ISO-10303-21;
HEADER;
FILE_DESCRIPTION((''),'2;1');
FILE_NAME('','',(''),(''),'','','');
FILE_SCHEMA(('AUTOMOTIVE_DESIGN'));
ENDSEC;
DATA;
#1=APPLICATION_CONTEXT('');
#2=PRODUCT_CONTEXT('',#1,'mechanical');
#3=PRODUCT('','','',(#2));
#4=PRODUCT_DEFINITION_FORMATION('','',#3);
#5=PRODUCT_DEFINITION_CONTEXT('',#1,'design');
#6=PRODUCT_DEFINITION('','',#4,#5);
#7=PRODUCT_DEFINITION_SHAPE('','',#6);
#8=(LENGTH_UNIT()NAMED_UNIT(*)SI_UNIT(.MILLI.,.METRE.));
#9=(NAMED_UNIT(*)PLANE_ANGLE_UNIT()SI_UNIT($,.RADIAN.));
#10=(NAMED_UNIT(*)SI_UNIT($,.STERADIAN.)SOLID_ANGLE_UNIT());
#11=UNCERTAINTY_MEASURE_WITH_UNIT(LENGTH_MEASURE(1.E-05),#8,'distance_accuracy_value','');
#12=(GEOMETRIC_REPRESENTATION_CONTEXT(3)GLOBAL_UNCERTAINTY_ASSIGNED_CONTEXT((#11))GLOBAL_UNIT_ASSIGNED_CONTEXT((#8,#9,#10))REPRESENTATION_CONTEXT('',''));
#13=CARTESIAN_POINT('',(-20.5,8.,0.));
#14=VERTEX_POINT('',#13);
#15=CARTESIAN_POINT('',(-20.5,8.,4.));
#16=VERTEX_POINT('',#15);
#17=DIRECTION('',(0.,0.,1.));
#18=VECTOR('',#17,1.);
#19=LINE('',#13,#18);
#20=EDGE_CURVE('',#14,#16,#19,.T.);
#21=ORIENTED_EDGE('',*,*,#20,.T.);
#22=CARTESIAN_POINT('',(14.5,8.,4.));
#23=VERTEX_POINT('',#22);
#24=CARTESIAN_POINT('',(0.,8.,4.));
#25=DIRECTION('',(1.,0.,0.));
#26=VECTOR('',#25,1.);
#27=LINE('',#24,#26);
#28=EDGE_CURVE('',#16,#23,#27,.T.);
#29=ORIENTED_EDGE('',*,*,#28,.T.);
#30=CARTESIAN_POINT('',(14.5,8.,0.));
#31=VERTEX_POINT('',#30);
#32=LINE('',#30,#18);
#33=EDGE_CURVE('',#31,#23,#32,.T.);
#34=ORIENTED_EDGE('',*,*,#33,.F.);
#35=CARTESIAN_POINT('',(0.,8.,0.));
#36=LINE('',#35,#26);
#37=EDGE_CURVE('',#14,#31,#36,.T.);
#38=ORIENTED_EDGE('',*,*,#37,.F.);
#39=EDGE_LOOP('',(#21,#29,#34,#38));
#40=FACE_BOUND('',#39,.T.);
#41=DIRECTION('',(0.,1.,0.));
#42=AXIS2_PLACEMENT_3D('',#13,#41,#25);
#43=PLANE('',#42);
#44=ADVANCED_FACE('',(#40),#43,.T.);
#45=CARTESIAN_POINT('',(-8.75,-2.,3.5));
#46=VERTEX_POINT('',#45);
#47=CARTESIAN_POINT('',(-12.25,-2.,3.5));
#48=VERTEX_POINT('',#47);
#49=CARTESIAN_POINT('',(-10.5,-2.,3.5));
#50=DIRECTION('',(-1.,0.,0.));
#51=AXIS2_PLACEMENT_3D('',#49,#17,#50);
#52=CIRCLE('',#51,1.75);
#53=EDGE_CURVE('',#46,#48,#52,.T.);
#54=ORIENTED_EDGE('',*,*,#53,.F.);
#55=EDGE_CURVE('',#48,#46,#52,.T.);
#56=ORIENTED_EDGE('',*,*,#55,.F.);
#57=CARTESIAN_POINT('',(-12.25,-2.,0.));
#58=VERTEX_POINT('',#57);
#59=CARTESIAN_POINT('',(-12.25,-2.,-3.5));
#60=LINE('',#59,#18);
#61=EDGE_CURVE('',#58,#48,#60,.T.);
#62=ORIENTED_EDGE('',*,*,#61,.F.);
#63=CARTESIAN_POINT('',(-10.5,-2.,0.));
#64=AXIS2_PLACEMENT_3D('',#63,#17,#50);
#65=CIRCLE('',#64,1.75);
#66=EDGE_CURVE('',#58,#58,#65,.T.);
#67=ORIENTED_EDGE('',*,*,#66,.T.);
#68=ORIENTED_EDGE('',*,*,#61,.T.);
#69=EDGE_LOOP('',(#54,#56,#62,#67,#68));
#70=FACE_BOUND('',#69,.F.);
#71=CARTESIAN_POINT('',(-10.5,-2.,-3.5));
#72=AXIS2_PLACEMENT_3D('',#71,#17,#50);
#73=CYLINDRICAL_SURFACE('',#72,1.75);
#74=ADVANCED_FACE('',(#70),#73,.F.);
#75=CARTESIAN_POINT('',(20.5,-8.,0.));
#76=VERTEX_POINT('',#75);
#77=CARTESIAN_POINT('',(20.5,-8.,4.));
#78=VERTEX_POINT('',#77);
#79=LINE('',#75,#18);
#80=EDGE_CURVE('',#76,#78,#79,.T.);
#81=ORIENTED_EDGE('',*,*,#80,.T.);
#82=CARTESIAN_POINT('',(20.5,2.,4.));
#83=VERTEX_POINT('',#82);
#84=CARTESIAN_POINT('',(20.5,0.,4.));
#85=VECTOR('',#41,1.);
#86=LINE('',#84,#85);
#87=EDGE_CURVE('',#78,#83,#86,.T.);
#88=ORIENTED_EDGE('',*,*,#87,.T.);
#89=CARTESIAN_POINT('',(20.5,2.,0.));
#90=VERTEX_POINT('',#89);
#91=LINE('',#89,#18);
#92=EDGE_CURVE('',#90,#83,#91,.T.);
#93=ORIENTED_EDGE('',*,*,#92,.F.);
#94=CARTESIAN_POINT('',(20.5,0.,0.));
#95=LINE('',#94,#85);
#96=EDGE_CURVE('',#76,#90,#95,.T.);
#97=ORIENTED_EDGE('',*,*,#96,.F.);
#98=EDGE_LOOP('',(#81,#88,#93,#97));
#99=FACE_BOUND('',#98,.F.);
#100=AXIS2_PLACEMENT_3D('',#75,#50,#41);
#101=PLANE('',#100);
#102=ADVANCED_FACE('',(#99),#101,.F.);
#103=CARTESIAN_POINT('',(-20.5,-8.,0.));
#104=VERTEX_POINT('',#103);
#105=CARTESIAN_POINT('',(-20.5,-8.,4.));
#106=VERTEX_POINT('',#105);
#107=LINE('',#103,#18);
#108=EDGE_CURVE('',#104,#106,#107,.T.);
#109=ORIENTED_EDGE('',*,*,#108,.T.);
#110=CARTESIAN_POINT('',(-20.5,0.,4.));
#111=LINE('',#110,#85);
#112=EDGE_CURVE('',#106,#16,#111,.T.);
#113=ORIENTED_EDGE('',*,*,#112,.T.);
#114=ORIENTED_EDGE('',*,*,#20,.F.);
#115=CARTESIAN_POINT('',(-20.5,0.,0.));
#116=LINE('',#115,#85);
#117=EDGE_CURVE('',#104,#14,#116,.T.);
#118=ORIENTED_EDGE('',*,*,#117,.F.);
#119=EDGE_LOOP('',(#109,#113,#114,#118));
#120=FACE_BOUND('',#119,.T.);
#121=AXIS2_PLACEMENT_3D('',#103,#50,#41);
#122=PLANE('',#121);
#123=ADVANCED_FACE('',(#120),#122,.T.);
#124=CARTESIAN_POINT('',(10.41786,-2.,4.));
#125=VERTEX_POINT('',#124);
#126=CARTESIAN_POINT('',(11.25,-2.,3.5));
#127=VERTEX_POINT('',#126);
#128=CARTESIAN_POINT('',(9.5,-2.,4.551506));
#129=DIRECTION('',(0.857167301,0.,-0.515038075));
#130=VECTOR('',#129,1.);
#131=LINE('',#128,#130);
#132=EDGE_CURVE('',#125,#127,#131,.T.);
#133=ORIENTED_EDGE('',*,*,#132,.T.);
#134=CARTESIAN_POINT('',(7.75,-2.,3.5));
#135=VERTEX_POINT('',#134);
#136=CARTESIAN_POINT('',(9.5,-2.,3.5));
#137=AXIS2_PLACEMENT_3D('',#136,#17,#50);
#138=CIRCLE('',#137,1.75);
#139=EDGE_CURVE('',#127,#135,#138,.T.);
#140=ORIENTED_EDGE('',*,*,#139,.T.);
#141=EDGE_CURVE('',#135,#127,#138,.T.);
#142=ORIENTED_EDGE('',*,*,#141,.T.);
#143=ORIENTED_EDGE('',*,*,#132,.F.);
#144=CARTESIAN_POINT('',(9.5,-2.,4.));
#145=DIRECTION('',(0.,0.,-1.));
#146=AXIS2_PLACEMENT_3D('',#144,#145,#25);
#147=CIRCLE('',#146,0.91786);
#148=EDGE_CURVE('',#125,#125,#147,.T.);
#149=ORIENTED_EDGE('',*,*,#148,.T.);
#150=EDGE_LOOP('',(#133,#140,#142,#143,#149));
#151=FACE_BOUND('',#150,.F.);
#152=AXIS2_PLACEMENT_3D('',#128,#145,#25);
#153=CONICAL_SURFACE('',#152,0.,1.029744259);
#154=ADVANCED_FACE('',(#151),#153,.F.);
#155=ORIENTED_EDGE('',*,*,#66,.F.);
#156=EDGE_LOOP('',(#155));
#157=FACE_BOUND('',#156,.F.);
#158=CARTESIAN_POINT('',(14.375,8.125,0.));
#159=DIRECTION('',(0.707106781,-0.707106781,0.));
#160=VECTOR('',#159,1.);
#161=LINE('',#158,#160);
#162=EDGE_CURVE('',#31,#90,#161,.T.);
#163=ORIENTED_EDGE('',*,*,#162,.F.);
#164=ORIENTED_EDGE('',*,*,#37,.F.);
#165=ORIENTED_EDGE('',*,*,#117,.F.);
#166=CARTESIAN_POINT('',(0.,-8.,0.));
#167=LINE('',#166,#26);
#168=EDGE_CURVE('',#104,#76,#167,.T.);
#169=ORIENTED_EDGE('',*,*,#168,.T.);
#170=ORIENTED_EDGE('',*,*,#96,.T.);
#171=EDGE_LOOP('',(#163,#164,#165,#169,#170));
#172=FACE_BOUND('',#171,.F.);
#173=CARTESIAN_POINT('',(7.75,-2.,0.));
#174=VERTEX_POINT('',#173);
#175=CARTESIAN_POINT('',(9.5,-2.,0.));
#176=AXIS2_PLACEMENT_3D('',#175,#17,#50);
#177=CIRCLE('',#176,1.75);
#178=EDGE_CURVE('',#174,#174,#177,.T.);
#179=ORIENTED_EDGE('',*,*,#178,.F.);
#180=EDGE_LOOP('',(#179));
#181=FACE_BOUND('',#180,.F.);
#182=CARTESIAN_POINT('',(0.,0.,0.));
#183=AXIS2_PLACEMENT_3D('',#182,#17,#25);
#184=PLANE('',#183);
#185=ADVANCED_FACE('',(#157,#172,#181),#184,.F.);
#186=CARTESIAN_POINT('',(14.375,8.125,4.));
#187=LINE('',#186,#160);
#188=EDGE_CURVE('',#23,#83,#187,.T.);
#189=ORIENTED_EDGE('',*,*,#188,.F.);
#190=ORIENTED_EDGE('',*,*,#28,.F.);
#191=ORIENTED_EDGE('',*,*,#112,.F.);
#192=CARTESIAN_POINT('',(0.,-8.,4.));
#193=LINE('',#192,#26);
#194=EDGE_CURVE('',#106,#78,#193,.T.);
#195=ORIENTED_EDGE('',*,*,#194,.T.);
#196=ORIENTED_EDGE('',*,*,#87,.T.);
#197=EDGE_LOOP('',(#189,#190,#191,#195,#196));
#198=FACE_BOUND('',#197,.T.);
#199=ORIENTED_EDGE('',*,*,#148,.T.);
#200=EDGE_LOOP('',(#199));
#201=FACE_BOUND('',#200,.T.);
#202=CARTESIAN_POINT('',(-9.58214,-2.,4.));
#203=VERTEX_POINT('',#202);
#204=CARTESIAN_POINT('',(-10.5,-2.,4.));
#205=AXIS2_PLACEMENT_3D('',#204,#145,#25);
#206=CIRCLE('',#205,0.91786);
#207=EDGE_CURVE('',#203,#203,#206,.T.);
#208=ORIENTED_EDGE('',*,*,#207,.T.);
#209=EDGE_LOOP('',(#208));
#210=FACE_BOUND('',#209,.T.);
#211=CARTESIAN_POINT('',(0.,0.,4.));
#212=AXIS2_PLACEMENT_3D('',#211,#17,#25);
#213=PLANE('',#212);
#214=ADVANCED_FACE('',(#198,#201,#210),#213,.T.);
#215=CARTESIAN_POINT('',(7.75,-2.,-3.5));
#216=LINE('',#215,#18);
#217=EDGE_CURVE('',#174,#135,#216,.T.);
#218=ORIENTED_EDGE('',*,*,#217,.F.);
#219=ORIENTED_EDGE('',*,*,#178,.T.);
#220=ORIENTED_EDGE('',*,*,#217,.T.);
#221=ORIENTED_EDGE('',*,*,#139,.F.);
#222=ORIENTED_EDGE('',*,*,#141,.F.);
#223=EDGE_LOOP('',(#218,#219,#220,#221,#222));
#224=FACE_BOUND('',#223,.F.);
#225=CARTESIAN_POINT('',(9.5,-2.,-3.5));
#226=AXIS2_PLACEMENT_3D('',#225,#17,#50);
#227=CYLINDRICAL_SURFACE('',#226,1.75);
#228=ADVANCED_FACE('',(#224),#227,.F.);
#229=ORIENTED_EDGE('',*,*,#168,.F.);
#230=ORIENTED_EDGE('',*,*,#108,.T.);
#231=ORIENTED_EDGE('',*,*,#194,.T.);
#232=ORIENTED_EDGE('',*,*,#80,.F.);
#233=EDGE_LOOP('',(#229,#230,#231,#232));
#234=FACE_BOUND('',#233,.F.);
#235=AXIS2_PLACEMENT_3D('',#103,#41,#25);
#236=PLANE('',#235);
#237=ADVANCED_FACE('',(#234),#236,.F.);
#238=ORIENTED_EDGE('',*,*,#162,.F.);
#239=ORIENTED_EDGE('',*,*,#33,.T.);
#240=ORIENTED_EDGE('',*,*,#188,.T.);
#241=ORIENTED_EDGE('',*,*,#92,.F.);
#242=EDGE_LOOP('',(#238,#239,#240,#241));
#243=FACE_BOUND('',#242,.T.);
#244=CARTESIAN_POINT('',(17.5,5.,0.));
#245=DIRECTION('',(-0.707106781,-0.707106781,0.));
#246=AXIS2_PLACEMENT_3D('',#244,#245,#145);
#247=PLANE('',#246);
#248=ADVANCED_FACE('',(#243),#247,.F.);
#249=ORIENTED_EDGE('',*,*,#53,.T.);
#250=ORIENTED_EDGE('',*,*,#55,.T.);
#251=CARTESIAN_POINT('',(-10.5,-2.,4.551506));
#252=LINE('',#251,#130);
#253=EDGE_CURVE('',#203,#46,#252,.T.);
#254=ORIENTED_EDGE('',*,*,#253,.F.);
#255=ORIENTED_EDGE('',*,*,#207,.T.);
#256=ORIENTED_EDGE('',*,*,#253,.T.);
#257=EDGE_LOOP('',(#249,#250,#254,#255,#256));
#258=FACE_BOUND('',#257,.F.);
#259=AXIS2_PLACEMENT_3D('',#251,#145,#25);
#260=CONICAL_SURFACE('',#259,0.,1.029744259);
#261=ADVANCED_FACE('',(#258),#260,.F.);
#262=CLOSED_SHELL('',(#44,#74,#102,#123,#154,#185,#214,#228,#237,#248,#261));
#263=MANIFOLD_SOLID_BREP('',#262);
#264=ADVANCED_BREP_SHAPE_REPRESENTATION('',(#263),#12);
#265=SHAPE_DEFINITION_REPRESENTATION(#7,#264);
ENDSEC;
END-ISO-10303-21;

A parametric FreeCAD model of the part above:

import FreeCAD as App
import Part
import Sketcher

V = App.Vector
Q = App.Units.Quantity


def edges_at(feature, points):
    """Names of the edges that pass closest to the given points."""
    edges = feature.Shape.Edges
    near = lambda p: min(range(len(edges)), key=lambda i: edges[i].distToShape(Part.Vertex(*p))[0])
    return sorted({f"Edge{near(p) + 1}" for p in points})

doc = App.newDocument("Part")
params = doc.addObject("Spreadsheet::Sheet", "Params")
for row, (alias, value) in enumerate([
    ("sketch1_width", "41 mm"),
    ("sketch1_height", "16 mm"),
    ("pad1_length", "4 mm"),
    ("sketch2_diameter", "3.5 mm"),
    ("hole_diameter", "3.5 mm"),
    ("hole_depth", "3.5 mm"),
    ("chamfer_size", "6 mm"),
], start=1):
    params.set(f"A{row}", alias)
    params.set(f"B{row}", "=" + value)
    params.setAlias(f"B{row}", alias)

body = doc.addObject("PartDesign::Body", "Body")

# Sketch on XY plane
sketch1 = body.newObject("Sketcher::SketchObject", "Sketch")
sketch1.AttachmentSupport = (doc.getObject("XY_Plane"), [""])
sketch1.MapMode = "FlatFace"
sketch1.addGeometry(Part.LineSegment(V(-20, 8, 0), V(-20, -8, 0)), False)
sketch1.addGeometry(Part.LineSegment(V(-20, -8, 0), V(20, -8, 0)), False)
sketch1.addGeometry(Part.LineSegment(V(20, -8, 0), V(20, 8, 0)), False)
sketch1.addGeometry(Part.LineSegment(V(20, 8, 0), V(-20, 8, 0)), False)
sketch1.addConstraint(Sketcher.Constraint("Coincident", 0, 2, 1, 1))
sketch1.addConstraint(Sketcher.Constraint("Coincident", 1, 2, 2, 1))
sketch1.addConstraint(Sketcher.Constraint("Coincident", 2, 2, 3, 1))
sketch1.addConstraint(Sketcher.Constraint("Coincident", 3, 2, 0, 1))
sketch1.addConstraint(Sketcher.Constraint("Vertical", 0))
sketch1.addConstraint(Sketcher.Constraint("Horizontal", 1))
sketch1.addConstraint(Sketcher.Constraint("Vertical", 2))
sketch1.addConstraint(Sketcher.Constraint("Horizontal", 3))
sketch1.addConstraint(Sketcher.Constraint("Symmetric", 0, 2, 2, 2, -1, 1))
sketch1.addConstraint(Sketcher.Constraint("DistanceX", 1, 1, 1, 2, Q("41 mm")))
sketch1.addConstraint(Sketcher.Constraint("DistanceY", 0, 2, 0, 1, Q("16 mm")))
sketch1.setExpression("Constraints[9]", "Params.sketch1_width")
sketch1.setExpression("Constraints[10]", "Params.sketch1_height")
pad1 = body.newObject("PartDesign::Pad", "Pad")
pad1.Profile = sketch1
pad1.setExpression("Length", "Params.pad1_length")

# Sketch on XY plane
sketch2 = body.newObject("Sketcher::SketchObject", "Sketch001")
sketch2.AttachmentSupport = (doc.getObject("XY_Plane"), [""])
sketch2.MapMode = "FlatFace"
sketch2.addGeometry(Part.Circle(V(-10.5, -2, 0), V(0, 0, 1), 1.8), False)
sketch2.addGeometry(Part.Circle(V(9.5, -2, 0), V(0, 0, 1), 1.8), False)
sketch2.addConstraint(Sketcher.Constraint("Equal", 0, 1))
sketch2.addConstraint(Sketcher.Constraint("Horizontal", 0, 3, 1, 3))
sketch2.addConstraint(Sketcher.Constraint("Diameter", 0, Q("3.5 mm")))
sketch2.addConstraint(Sketcher.Constraint("DistanceY", 0, 3, -1, 1, Q("2 mm")))
sketch2.addConstraint(Sketcher.Constraint("DistanceX", 0, 3, 1, 3, Q("20 mm")))
sketch2.addConstraint(Sketcher.Constraint("DistanceX", 0, 3, -1, 1, Q("10.5 mm")))
sketch2.setExpression("Constraints[2]", "Params.sketch2_diameter")
doc.recompute()
hole = body.newObject("PartDesign::Hole", "Hole")
hole.Profile = sketch2
hole.ThreadType = "None"
hole.setExpression("Diameter", "Params.hole_diameter")
hole.DepthType = "Dimension"
hole.setExpression("Depth", "Params.hole_depth")
hole.DrillPoint = "Angled"
hole.DrillPointAngle = 118
hole.Reversed = True
doc.recompute()

chamfer = body.newObject("PartDesign::Chamfer", "Chamfer")
chamfer.Base = (hole, edges_at(hole, [(20.5, 8, 2)]))
chamfer.setExpression("Size", "Params.chamfer_size")

doc.recompute()
